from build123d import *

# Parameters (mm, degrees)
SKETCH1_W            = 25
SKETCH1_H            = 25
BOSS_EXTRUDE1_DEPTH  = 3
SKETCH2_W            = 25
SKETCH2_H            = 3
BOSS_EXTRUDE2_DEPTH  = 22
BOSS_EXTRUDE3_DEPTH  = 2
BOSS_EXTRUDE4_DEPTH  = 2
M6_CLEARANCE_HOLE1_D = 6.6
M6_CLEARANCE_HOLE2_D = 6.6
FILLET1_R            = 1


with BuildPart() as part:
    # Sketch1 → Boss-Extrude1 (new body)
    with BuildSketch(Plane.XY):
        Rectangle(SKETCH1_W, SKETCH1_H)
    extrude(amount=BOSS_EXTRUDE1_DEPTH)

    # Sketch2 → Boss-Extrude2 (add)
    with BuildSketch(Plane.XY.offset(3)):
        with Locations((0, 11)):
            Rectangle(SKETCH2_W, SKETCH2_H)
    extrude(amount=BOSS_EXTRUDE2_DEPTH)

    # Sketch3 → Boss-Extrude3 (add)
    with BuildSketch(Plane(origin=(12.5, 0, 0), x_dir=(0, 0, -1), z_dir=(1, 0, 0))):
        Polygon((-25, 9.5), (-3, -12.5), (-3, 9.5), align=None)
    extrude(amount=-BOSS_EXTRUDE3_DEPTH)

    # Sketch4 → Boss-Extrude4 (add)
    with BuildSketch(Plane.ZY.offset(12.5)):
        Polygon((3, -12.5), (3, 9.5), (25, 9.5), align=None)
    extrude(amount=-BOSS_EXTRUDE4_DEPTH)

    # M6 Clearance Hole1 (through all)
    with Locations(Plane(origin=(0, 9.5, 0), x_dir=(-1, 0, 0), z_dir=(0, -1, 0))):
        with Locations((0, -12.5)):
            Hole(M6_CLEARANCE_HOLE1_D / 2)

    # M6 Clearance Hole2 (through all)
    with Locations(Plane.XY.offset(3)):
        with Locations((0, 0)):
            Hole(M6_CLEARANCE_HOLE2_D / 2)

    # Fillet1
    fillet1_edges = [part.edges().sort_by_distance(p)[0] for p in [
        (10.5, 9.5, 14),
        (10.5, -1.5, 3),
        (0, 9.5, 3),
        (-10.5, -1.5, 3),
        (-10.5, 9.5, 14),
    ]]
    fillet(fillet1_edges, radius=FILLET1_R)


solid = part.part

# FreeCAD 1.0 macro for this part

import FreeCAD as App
import Part
import Sketcher

V = App.Vector
Q = App.Units.Quantity


def edges_at(feature, points):
    """Names of the edges that pass closest to the given points."""
    edges = feature.Shape.Edges
    near = lambda p: min(range(len(edges)), key=lambda i: edges[i].distToShape(Part.Vertex(*p))[0])
    return sorted({f"Edge{near(p) + 1}" for p in points})


def add_polygon(sketch, points):
    """Adds a closed chain of lines whose ends are joined by coincident constraints."""
    first, n = sketch.GeometryCount, len(points)
    for a, b in zip(points, points[1:] + points[:1]):
        sketch.addGeometry(Part.LineSegment(App.Vector(*a, 0), App.Vector(*b, 0)), False)
    for i in range(n):
        sketch.addConstraint(Sketcher.Constraint("Coincident", first + i, 2, first + (i + 1) % n, 1))

doc = App.newDocument("Part")
params = doc.addObject("Spreadsheet::Sheet", "Params")
for row, (alias, value) in enumerate([
    ("sketch1_width", "25 mm"),
    ("pad1_length", "3 mm"),
    ("sketch2_width", "25 mm"),
    ("sketch2_height", "3 mm"),
    ("pad2_length", "22 mm"),
    ("sketch3_width", "22 mm"),
    ("pad3_length", "2 mm"),
    ("sketch4_width", "22 mm"),
    ("pad4_length", "2 mm"),
    ("sketch5_diameter", "6.6 mm"),
    ("hole_diameter", "6.6 mm"),
    ("sketch6_diameter", "6.6 mm"),
    ("hole2_diameter", "6.6 mm"),
    ("fillet_radius", "1 mm"),
], start=1):
    params.set(f"A{row}", alias)
    params.set(f"B{row}", "=" + value)
    params.setAlias(f"B{row}", alias)

body = doc.addObject("PartDesign::Body", "Body")

# Sketch on XY plane
sketch1 = body.newObject("Sketcher::SketchObject", "Sketch")
sketch1.AttachmentSupport = (doc.getObject("XY_Plane"), [""])
sketch1.MapMode = "FlatFace"
add_polygon(sketch1, [(-12, 12), (-12, -12), (12, -12), (12, 12)])  # lines 0-3
sketch1.addConstraint(Sketcher.Constraint("Vertical", 0))
sketch1.addConstraint(Sketcher.Constraint("Horizontal", 1))
sketch1.addConstraint(Sketcher.Constraint("Vertical", 2))
sketch1.addConstraint(Sketcher.Constraint("Horizontal", 3))
sketch1.addConstraint(Sketcher.Constraint("Symmetric", 0, 2, 2, 2, -1, 1))
sketch1.addConstraint(Sketcher.Constraint("Equal", 3, 0))
sketch1.addConstraint(Sketcher.Constraint("DistanceX", 1, 1, 1, 2, Q("25 mm")))
sketch1.setExpression("Constraints[10]", "Params.sketch1_width")
pad1 = body.newObject("PartDesign::Pad", "Pad")
pad1.Profile = sketch1
pad1.setExpression("Length", "Params.pad1_length")

# Sketch on XY plane
sketch2 = body.newObject("Sketcher::SketchObject", "Sketch001")
sketch2.AttachmentSupport = (doc.getObject("XY_Plane"), [""])
sketch2.MapMode = "FlatFace"
sketch2.AttachmentOffset = App.Placement(V(0, 0, 3), App.Rotation())
add_polygon(sketch2, [(-12.5, 12.5), (-12.5, 9.5), (12.5, 9.5), (12.5, 12.5)])  # lines 0-3
sketch2.addConstraint(Sketcher.Constraint("Vertical", 0))
sketch2.addConstraint(Sketcher.Constraint("Horizontal", 1))
sketch2.addConstraint(Sketcher.Constraint("Vertical", 2))
sketch2.addConstraint(Sketcher.Constraint("Horizontal", 3))
sketch2.addConstraint(Sketcher.Constraint("DistanceX", 1, 1, 1, 2, Q("25 mm")))
sketch2.addConstraint(Sketcher.Constraint("DistanceY", 0, 2, 0, 1, Q("3 mm")))
sketch2.addConstraint(Sketcher.Constraint("DistanceX", 0, 2, -1, 1, Q("12.5 mm")))
sketch2.addConstraint(Sketcher.Constraint("DistanceY", -1, 1, 0, 2, Q("9.5 mm")))
sketch2.setExpression("Constraints[8]", "Params.sketch2_width")
sketch2.setExpression("Constraints[9]", "Params.sketch2_height")
pad2 = body.newObject("PartDesign::Pad", "Pad001")
pad2.Profile = sketch2
pad2.setExpression("Length", "Params.pad2_length")

# Sketch on YZ plane
sketch3 = body.newObject("Sketcher::SketchObject", "Sketch002")
sketch3.AttachmentSupport = (doc.getObject("YZ_Plane"), [""])
sketch3.MapMode = "FlatFace"
sketch3.AttachmentOffset = App.Placement(V(0, 0, 12.5), App.Rotation())
add_polygon(sketch3, [(10, 25), (-12, 3), (10, 3)])  # lines 0-2
sketch3.addConstraint(Sketcher.Constraint("Horizontal", 1))
sketch3.addConstraint(Sketcher.Constraint("Vertical", 2))
sketch3.addConstraint(Sketcher.Constraint("Equal", 1, 2))
sketch3.addConstraint(Sketcher.Constraint("DistanceX", 1, 1, 1, 2, Q("22 mm")))
sketch3.addConstraint(Sketcher.Constraint("DistanceY", -1, 1, 0, 2, Q("3 mm")))
sketch3.addConstraint(Sketcher.Constraint("DistanceX", 0, 2, -1, 1, Q("12.5 mm")))
sketch3.setExpression("Constraints[6]", "Params.sketch3_width")
pad3 = body.newObject("PartDesign::Pad", "Pad002")
pad3.Profile = sketch3
pad3.setExpression("Length", "Params.pad3_length")
pad3.Reversed = True

# Sketch on YZ plane
sketch4 = body.newObject("Sketcher::SketchObject", "Sketch003")
sketch4.AttachmentSupport = (doc.getObject("YZ_Plane"), [""])
sketch4.MapMode = "FlatFace"
sketch4.AttachmentOffset = App.Placement(V(0, 0, -12.5), App.Rotation())
add_polygon(sketch4, [(10, 3), (-12, 3), (10, 25)])  # lines 0-2
sketch4.addConstraint(Sketcher.Constraint("Horizontal", 0))
sketch4.addConstraint(Sketcher.Constraint("Vertical", 2))
sketch4.addConstraint(Sketcher.Constraint("Equal", 0, 2))
sketch4.addConstraint(Sketcher.Constraint("DistanceX", 0, 2, 0, 1, Q("22 mm")))
sketch4.addConstraint(Sketcher.Constraint("DistanceY", -1, 1, 0, 2, Q("3 mm")))
sketch4.addConstraint(Sketcher.Constraint("DistanceX", 0, 2, -1, 1, Q("12.5 mm")))
sketch4.setExpression("Constraints[6]", "Params.sketch4_width")
pad4 = body.newObject("PartDesign::Pad", "Pad003")
pad4.Profile = sketch4
pad4.setExpression("Length", "Params.pad4_length")

# Sketch on XZ plane
sketch5 = body.newObject("Sketcher::SketchObject", "Sketch004")
sketch5.AttachmentSupport = (doc.getObject("XZ_Plane"), [""])
sketch5.MapMode = "FlatFace"
sketch5.AttachmentOffset = App.Placement(V(0, 0, -9.5), App.Rotation())
sketch5.addGeometry(Part.Circle(V(0, 12.5, 0), V(0, 0, 1), 3.3), False)
sketch5.addConstraint(Sketcher.Constraint("PointOnObject", 0, 3, -2))
sketch5.addConstraint(Sketcher.Constraint("Diameter", 0, Q("6.6 mm")))
sketch5.addConstraint(Sketcher.Constraint("DistanceY", -1, 1, 0, 3, Q("12.5 mm")))
sketch5.setExpression("Constraints[1]", "Params.sketch5_diameter")
doc.recompute()
hole = body.newObject("PartDesign::Hole", "Hole")
hole.Profile = sketch5
hole.ThreadType = "None"
hole.setExpression("Diameter", "Params.hole_diameter")
hole.DepthType = "ThroughAll"

# Sketch on XY plane
sketch6 = body.newObject("Sketcher::SketchObject", "Sketch005")
sketch6.AttachmentSupport = (doc.getObject("XY_Plane"), [""])
sketch6.MapMode = "FlatFace"
sketch6.AttachmentOffset = App.Placement(V(0, 0, 3), App.Rotation())
sketch6.addGeometry(Part.Circle(V(0, 0, 0), V(0, 0, 1), 3.3), False)
sketch6.addConstraint(Sketcher.Constraint("Coincident", 0, 3, -1, 1))
sketch6.addConstraint(Sketcher.Constraint("Diameter", 0, Q("6.6 mm")))
sketch6.setExpression("Constraints[1]", "Params.sketch6_diameter")
doc.recompute()
hole2 = body.newObject("PartDesign::Hole", "Hole001")
hole2.Profile = sketch6
hole2.ThreadType = "None"
hole2.setExpression("Diameter", "Params.hole2_diameter")
hole2.DepthType = "ThroughAll"
doc.recompute()

fillet = body.newObject("PartDesign::Fillet", "Fillet")
fillet.Base = (hole2, edges_at(hole2, [
    (10.5, 9.5, 14),
    (10.5, -1.5, 3),
    (0, 9.5, 3),
    (-10.5, -1.5, 3),
    (-10.5, 9.5, 14),
]))
fillet.setExpression("Radius", "Params.fillet_radius")

doc.recompute()
